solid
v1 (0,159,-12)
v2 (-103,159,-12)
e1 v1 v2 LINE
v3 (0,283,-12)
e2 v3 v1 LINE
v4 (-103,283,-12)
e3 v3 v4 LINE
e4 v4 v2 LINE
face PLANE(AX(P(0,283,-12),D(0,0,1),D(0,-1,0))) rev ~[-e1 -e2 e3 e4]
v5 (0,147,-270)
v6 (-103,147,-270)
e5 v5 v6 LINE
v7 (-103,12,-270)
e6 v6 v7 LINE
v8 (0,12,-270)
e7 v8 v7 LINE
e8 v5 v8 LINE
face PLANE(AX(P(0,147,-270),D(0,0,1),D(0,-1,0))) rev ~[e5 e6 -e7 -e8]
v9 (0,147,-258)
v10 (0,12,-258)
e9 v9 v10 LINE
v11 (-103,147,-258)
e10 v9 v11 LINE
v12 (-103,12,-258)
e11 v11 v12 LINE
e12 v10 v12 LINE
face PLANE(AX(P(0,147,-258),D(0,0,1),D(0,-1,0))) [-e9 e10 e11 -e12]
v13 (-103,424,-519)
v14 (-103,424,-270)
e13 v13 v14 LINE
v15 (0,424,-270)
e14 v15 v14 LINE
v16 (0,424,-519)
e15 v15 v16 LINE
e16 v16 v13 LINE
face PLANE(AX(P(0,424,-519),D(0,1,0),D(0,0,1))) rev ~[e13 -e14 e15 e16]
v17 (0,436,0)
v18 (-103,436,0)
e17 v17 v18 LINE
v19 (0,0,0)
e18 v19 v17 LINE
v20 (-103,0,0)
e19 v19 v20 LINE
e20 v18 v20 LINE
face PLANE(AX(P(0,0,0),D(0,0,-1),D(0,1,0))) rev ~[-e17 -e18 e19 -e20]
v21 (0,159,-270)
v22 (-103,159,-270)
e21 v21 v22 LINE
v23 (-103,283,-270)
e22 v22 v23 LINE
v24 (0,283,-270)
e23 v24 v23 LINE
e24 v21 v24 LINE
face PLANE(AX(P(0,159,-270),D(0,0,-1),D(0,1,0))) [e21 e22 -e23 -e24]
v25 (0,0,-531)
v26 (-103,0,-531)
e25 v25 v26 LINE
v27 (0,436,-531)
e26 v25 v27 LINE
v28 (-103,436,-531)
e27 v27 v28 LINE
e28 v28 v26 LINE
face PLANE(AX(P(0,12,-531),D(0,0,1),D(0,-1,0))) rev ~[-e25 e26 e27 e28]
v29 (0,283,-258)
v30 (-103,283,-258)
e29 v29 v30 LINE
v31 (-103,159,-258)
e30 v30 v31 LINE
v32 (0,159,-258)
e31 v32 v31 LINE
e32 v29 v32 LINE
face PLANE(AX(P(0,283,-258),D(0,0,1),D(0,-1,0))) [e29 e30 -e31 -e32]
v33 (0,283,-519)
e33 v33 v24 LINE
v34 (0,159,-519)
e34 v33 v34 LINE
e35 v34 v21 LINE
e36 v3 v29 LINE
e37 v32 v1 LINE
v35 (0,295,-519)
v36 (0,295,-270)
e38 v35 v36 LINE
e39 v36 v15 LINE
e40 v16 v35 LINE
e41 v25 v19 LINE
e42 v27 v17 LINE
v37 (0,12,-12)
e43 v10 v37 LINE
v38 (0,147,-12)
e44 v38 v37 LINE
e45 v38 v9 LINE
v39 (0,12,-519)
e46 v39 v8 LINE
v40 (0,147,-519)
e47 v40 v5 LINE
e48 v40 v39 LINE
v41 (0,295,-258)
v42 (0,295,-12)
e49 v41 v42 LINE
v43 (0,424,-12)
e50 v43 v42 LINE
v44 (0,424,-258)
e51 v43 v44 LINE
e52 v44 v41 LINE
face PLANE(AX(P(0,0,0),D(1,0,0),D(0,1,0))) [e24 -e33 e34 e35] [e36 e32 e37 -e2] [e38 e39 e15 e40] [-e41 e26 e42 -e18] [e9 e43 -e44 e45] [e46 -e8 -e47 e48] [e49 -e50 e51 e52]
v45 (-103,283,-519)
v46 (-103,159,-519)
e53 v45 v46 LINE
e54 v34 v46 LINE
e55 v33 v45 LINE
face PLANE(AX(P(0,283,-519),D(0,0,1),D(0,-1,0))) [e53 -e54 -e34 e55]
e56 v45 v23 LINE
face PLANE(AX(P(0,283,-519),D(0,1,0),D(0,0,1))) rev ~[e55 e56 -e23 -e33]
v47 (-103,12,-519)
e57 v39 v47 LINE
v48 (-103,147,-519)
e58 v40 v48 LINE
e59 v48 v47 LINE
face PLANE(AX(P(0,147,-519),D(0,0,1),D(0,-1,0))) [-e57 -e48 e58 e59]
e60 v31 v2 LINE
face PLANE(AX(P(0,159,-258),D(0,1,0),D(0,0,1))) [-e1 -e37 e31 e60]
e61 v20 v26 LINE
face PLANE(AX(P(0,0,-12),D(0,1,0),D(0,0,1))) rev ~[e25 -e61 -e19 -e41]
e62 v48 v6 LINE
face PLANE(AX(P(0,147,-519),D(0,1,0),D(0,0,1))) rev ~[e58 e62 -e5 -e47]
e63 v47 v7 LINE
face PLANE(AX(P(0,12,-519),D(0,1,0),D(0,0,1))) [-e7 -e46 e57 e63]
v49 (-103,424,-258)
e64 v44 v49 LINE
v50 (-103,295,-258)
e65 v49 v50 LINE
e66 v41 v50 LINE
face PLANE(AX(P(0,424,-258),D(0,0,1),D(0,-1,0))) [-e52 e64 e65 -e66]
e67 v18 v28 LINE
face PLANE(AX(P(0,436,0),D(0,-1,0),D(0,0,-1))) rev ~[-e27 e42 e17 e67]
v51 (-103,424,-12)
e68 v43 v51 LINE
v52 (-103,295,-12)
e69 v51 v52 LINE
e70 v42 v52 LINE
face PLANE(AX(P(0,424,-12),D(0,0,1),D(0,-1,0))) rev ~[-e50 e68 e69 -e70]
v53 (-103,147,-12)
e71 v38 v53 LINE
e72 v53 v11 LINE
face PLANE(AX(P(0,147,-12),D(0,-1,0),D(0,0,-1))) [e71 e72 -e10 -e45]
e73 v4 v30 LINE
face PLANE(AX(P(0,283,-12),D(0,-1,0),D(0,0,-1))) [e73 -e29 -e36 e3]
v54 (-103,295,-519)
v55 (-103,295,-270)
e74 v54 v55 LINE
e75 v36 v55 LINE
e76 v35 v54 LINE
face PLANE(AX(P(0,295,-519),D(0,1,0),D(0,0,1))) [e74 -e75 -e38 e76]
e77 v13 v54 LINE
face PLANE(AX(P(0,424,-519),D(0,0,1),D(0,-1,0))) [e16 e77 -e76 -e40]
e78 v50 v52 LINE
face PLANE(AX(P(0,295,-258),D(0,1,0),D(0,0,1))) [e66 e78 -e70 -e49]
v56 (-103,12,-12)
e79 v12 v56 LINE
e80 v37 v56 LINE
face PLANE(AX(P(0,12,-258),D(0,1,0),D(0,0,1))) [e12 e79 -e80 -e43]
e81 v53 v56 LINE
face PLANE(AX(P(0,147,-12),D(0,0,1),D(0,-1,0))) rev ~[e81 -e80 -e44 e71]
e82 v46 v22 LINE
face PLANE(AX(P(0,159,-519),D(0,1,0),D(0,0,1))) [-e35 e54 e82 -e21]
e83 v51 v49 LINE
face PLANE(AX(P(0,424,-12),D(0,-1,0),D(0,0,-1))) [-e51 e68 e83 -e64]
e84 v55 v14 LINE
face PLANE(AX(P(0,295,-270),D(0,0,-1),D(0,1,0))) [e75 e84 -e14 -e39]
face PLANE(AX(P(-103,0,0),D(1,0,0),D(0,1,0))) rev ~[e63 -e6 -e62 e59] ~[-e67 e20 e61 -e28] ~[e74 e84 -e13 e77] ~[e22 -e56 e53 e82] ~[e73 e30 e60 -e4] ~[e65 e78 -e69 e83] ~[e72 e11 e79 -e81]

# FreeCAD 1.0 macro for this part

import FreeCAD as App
import Part
import Sketcher
from FreeCAD import Vector


def add_polygon(sketch, points):
    """Adds a closed chain of lines whose ends are joined by coincident constraints."""
    first, n = sketch.GeometryCount, len(points)
    for a, b in zip(points, points[1:] + points[:1]):
        sketch.addGeometry(Part.LineSegment(App.Vector(*a, 0), App.Vector(*b, 0)), False)
    for i in range(n):
        sketch.addConstraint(Sketcher.Constraint("Coincident", first + i, 2, first + (i + 1) % n, 1))

doc = App.newDocument("Part")
body = doc.addObject("PartDesign::Body", "Body")

# Sketch on YZ plane
sketch1 = body.newObject("Sketcher::SketchObject", "Sketch")
sketch1.AttachmentSupport = (doc.getObject("YZ_Plane"), [""])
sketch1.MapMode = "FlatFace"
add_polygon(sketch1, [(0, 0), (0, -531), (436, -531), (436, 0)])  # lines 0-3
add_polygon(sketch1, [(295, -12), (424, -12), (424, -258), (295, -258)])  # lines 4-7
add_polygon(sketch1, [(159, -12), (283, -12), (283, -258), (159, -258)])  # lines 8-11
add_polygon(sketch1, [(12, -12), (147, -12), (147, -258), (12, -258)])  # lines 12-15
add_polygon(sketch1, [(12, -519), (12, -270), (147, -270), (147, -519)])  # lines 16-19
add_polygon(sketch1, [(424, -519), (295, -519), (295, -270), (424, -270)])  # lines 20-23
add_polygon(sketch1, [(159, -270), (283, -270), (283, -519), (159, -519)])  # lines 24-27
sketch1.addConstraint(Sketcher.Constraint("Vertical", 0))
sketch1.addConstraint(Sketcher.Constraint("Horizontal", 1))
sketch1.addConstraint(Sketcher.Constraint("Vertical", 2))
sketch1.addConstraint(Sketcher.Constraint("Horizontal", 3))
sketch1.addConstraint(Sketcher.Constraint("Horizontal", 4))
sketch1.addConstraint(Sketcher.Constraint("Vertical", 5))
sketch1.addConstraint(Sketcher.Constraint("Horizontal", 6))
sketch1.addConstraint(Sketcher.Constraint("Vertical", 7))
sketch1.addConstraint(Sketcher.Constraint("Horizontal", 8))
sketch1.addConstraint(Sketcher.Constraint("Vertical", 9))
sketch1.addConstraint(Sketcher.Constraint("Horizontal", 10))
sketch1.addConstraint(Sketcher.Constraint("Vertical", 11))
sketch1.addConstraint(Sketcher.Constraint("Horizontal", 12))
sketch1.addConstraint(Sketcher.Constraint("Vertical", 13))
sketch1.addConstraint(Sketcher.Constraint("Horizontal", 14))
sketch1.addConstraint(Sketcher.Constraint("Vertical", 15))
sketch1.addConstraint(Sketcher.Constraint("Vertical", 16))
sketch1.addConstraint(Sketcher.Constraint("Horizontal", 17))
sketch1.addConstraint(Sketcher.Constraint("Vertical", 18))
sketch1.addConstraint(Sketcher.Constraint("Horizontal", 19))
sketch1.addConstraint(Sketcher.Constraint("Horizontal", 20))
sketch1.addConstraint(Sketcher.Constraint("Vertical", 21))
sketch1.addConstraint(Sketcher.Constraint("Horizontal", 22))
sketch1.addConstraint(Sketcher.Constraint("Vertical", 23))
sketch1.addConstraint(Sketcher.Constraint("Horizontal", 24))
sketch1.addConstraint(Sketcher.Constraint("Vertical", 25))
sketch1.addConstraint(Sketcher.Constraint("Horizontal", 26))
sketch1.addConstraint(Sketcher.Constraint("Vertical", 27))
sketch1.addConstraint(Sketcher.Constraint("Coincident", 3, 2, -1, 1))
sketch1.addConstraint(Sketcher.Constraint("Horizontal", 7, 2, 8, 2))
sketch1.addConstraint(Sketcher.Constraint("Horizontal", 6, 2, 9, 2))
sketch1.addConstraint(Sketcher.Constraint("Horizontal", 11, 2, 12, 2))
sketch1.addConstraint(Sketcher.Constraint("Horizontal", 10, 2, 13, 2))
sketch1.addConstraint(Sketcher.Constraint("Horizontal", 19, 2, 20, 2))
sketch1.addConstraint(Sketcher.Constraint("Horizontal", 17, 2, 21, 2))
sketch1.addConstraint(Sketcher.Constraint("Horizontal", 22, 2, 24, 2))
sketch1.addConstraint(Sketcher.Constraint("Horizontal", 23, 2, 25, 2))
sketch1.addConstraint(Sketcher.Constraint("Vertical", 15, 2, 16, 2))
sketch1.addConstraint(Sketcher.Constraint("Vertical", 13, 2, 17, 2))
sketch1.addConstraint(Sketcher.Constraint("Vertical", 7, 2, 20, 2))
sketch1.addConstraint(Sketcher.Constraint("Vertical", 5, 2, 22, 2))
sketch1.addConstraint(Sketcher.Constraint("Vertical", 9, 2, 24, 2))
sketch1.addConstraint(Sketcher.Constraint("Vertical", 11, 2, 26, 2))
sketch1.addConstraint(Sketcher.Constraint("DistanceX", 1, 1, 1, 2, 436.0))
sketch1.addConstraint(Sketcher.Constraint("DistanceX", 8, 1, 8, 2, 124.0))
sketch1.addConstraint(Sketcher.Constraint("DistanceX", 12, 1, 12, 2, 135.0))
sketch1.addConstraint(Sketcher.Constraint("DistanceY", 0, 2, 0, 1, 531.0))
sketch1.addConstraint(Sketcher.Constraint("DistanceY", 16, 1, 16, 2, 249.0))
sketch1.addConstraint(Sketcher.Constraint("DistanceY", 4, 2, -1, 1, 12.0))
sketch1.addConstraint(Sketcher.Constraint("DistanceX", -1, 1, 14, 2, 12.0))
sketch1.addConstraint(Sketcher.Constraint("DistanceX", 4, 2, 2, 2, 12.0))
sketch1.addConstraint(Sketcher.Constraint("DistanceX", 8, 2, 7, 2, 12.0))
sketch1.addConstraint(Sketcher.Constraint("DistanceX", 12, 2, 11, 2, 12.0))
sketch1.addConstraint(Sketcher.Constraint("DistanceY", 16, 2, 14, 2, 12.0))
sketch1.addConstraint(Sketcher.Constraint("DistanceY", 0, 2, 18, 2, 12.0))
pad1 = body.newObject("PartDesign::Pad", "Pad")
pad1.Profile = sketch1
pad1.Length = 103
pad1.Reversed = True

doc.recompute()
